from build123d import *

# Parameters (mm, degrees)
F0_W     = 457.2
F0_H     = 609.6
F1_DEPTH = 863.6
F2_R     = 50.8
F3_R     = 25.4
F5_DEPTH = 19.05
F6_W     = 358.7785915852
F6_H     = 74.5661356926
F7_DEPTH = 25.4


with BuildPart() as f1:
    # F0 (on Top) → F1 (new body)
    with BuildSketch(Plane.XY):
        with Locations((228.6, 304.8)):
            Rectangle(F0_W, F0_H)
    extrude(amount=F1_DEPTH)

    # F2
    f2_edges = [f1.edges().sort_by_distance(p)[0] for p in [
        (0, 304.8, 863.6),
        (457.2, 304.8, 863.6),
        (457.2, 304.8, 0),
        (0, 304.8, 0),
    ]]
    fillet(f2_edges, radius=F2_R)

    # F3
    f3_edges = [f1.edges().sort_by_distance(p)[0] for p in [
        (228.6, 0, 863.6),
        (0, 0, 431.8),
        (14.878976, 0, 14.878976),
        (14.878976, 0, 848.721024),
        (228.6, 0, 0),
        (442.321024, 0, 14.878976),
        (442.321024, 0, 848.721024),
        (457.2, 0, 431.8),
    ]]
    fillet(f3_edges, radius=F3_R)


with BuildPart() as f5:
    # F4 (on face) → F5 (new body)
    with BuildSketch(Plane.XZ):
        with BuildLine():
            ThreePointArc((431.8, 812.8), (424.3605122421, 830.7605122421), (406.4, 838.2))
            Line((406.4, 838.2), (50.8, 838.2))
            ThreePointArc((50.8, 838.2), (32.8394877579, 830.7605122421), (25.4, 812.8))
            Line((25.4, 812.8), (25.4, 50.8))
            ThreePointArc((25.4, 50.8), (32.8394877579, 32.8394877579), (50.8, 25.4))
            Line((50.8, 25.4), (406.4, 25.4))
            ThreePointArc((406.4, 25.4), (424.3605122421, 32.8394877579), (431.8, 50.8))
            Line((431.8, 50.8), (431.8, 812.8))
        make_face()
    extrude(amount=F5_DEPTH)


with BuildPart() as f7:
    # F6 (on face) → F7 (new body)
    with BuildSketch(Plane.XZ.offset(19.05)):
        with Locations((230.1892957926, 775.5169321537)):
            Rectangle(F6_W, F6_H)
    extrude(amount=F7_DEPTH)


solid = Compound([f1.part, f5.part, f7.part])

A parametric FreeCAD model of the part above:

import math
import FreeCAD as App
import Part
import Sketcher

V = App.Vector
Q = App.Units.Quantity


def edges_at(feature, points):
    """Names of the edges that pass closest to the given points."""
    edges = feature.Shape.Edges
    near = lambda p: min(range(len(edges)), key=lambda i: edges[i].distToShape(Part.Vertex(*p))[0])
    return sorted({f"Edge{near(p) + 1}" for p in points})


def add_polygon(sketch, points):
    """Adds a closed chain of lines whose ends are joined by coincident constraints."""
    first, n = sketch.GeometryCount, len(points)
    for a, b in zip(points, points[1:] + points[:1]):
        sketch.addGeometry(Part.LineSegment(App.Vector(*a, 0), App.Vector(*b, 0)), False)
    for i in range(n):
        sketch.addConstraint(Sketcher.Constraint("Coincident", first + i, 2, first + (i + 1) % n, 1))

doc = App.newDocument("Part")
params = doc.addObject("Spreadsheet::Sheet", "Params")
for row, (alias, value) in enumerate([
    ("sketch1_width", "18 in"),
    ("sketch1_height", "24 in"),
    ("pad1_length", "34 in"),
    ("fillet_radius", "2 in"),
    ("fillet2_radius", "1 in"),
    ("sketch2_radius", "1 in"),
    ("sketch2_width", "14 in"),
    ("sketch2_height", "30 in"),
    ("pad2_length", "0.75 in"),
    ("pad3_length", "1 in"),
], start=1):
    params.set(f"A{row}", alias)
    params.set(f"B{row}", "=" + value)
    params.setAlias(f"B{row}", alias)

body = doc.addObject("PartDesign::Body", "Body")

# Sketch on XY plane
sketch1 = doc.addObject("Sketcher::SketchObject", "Sketch")
body.addObject(sketch1)
sketch1.AttachmentSupport = (doc.XY_Plane, [""])
sketch1.MapMode = "FlatFace"
add_polygon(sketch1, [(0, 609.6), (0, 0), (457.2, 0), (457.2, 609.6)])  # lines 0-3
sketch1.addConstraint(Sketcher.Constraint("Vertical", 0))
sketch1.addConstraint(Sketcher.Constraint("Horizontal", 1))
sketch1.addConstraint(Sketcher.Constraint("Vertical", 2))
sketch1.addConstraint(Sketcher.Constraint("Horizontal", 3))
sketch1.addConstraint(Sketcher.Constraint("Coincident", 0, 2, -1, 1))
sketch1.addConstraint(Sketcher.Constraint("DistanceX", 1, 1, 1, 2, Q("18 in")))
sketch1.addConstraint(Sketcher.Constraint("DistanceY", 0, 2, 0, 1, Q("24 in")))
sketch1.setExpression("Constraints[9]", "Params.sketch1_width")
sketch1.setExpression("Constraints[10]", "Params.sketch1_height")
pad1 = doc.addObject("PartDesign::Pad", "Pad")
body.addObject(pad1)
pad1.Profile = sketch1
pad1.setExpression("Length", "Params.pad1_length")
doc.recompute()

fillet = doc.addObject("PartDesign::Fillet", "Fillet")
body.addObject(fillet)
fillet.Base = (pad1, edges_at(pad1, [
    (0, 304.8, 863.6),
    (457.2, 304.8, 863.6),
    (457.2, 304.8, 0),
    (0, 304.8, 0),
]))
fillet.setExpression("Radius", "Params.fillet_radius")
doc.recompute()

fillet2 = doc.addObject("PartDesign::Fillet", "Fillet001")
body.addObject(fillet2)
fillet2.Base = (fillet, edges_at(fillet, [
    (228.6, 0, 863.6),
    (0, 0, 431.8),
    (14.879, 0, 14.879),
    (14.879, 0, 848.721),
    (228.6, 0, 0),
    (442.321, 0, 14.879),
    (442.321, 0, 848.721),
    (457.2, 0, 431.8),
]))
fillet2.setExpression("Radius", "Params.fillet2_radius")
body2 = doc.addObject("PartDesign::Body", "Body001")

# Sketch on XZ plane
sketch2 = doc.addObject("Sketcher::SketchObject", "Sketch001")
body2.addObject(sketch2)
sketch2.AttachmentSupport = (doc.getObject("XZ_Plane001"), [""])
sketch2.MapMode = "FlatFace"
sketch2.addGeometry(Part.ArcOfCircle(Part.Circle(V(406.4, 812.8, 0), V(0, 0, 1), 25.4), math.radians(0), math.radians(90)), False)
sketch2.addGeometry(Part.LineSegment(V(406.4, 838.2, 0), V(50.8, 838.2, 0)), False)
sketch2.addGeometry(Part.ArcOfCircle(Part.Circle(V(50.8, 812.8, 0), V(0, 0, 1), 25.4), math.radians(90), math.radians(180)), False)
sketch2.addGeometry(Part.LineSegment(V(25.4, 812.8, 0), V(25.4, 50.8, 0)), False)
sketch2.addGeometry(Part.ArcOfCircle(Part.Circle(V(50.8, 50.8, 0), V(0, 0, 1), 25.4), math.radians(180), math.radians(270)), False)
sketch2.addGeometry(Part.LineSegment(V(50.8, 25.4, 0), V(406.4, 25.4, 0)), False)
sketch2.addGeometry(Part.ArcOfCircle(Part.Circle(V(406.4, 50.8, 0), V(0, 0, 1), 25.4), math.radians(-90), math.radians(0)), False)
sketch2.addGeometry(Part.LineSegment(V(431.8, 50.8, 0), V(431.8, 812.8, 0)), False)
sketch2.addConstraint(Sketcher.Constraint("Tangent", 0, 2, 1, 1))
sketch2.addConstraint(Sketcher.Constraint("Tangent", 1, 2, 2, 1))
sketch2.addConstraint(Sketcher.Constraint("Tangent", 2, 2, 3, 1))
sketch2.addConstraint(Sketcher.Constraint("Tangent", 3, 2, 4, 1))
sketch2.addConstraint(Sketcher.Constraint("Tangent", 4, 2, 5, 1))
sketch2.addConstraint(Sketcher.Constraint("Tangent", 5, 2, 6, 1))
sketch2.addConstraint(Sketcher.Constraint("Tangent", 6, 2, 7, 1))
sketch2.addConstraint(Sketcher.Constraint("Tangent", 7, 2, 0, 1))
sketch2.addConstraint(Sketcher.Constraint("Horizontal", 1))
sketch2.addConstraint(Sketcher.Constraint("Vertical", 3))
sketch2.addConstraint(Sketcher.Constraint("Horizontal", 5))
sketch2.addConstraint(Sketcher.Constraint("Vertical", 7))
sketch2.addConstraint(Sketcher.Constraint("Equal", 0, 2))
sketch2.addConstraint(Sketcher.Constraint("Equal", 2, 4))
sketch2.addConstraint(Sketcher.Constraint("Equal", 4, 6))
sketch2.addConstraint(Sketcher.Constraint("Radius", 0, Q("1 in")))
sketch2.addConstraint(Sketcher.Constraint("DistanceX", 1, 2, 1, 1, Q("14 in")))
sketch2.addConstraint(Sketcher.Constraint("DistanceY", 3, 2, 3, 1, Q("30 in")))
sketch2.addConstraint(Sketcher.Constraint("DistanceX", -1, 1, 0, 3, Q("16 in")))
sketch2.addConstraint(Sketcher.Constraint("DistanceY", -1, 1, 0, 3, Q("32 in")))
sketch2.setExpression("Constraints[15]", "Params.sketch2_radius")
sketch2.setExpression("Constraints[16]", "Params.sketch2_width")
sketch2.setExpression("Constraints[17]", "Params.sketch2_height")
pad2 = doc.addObject("PartDesign::Pad", "Pad001")
body2.addObject(pad2)
pad2.Profile = sketch2
pad2.setExpression("Length", "Params.pad2_length")
body3 = doc.addObject("PartDesign::Body", "Body002")

# Sketch on XZ plane
sketch3 = doc.addObject("Sketcher::SketchObject", "Sketch002")
body3.addObject(sketch3)
sketch3.AttachmentSupport = (doc.getObject("XZ_Plane002"), [""])
sketch3.MapMode = "FlatFace"
sketch3.AttachmentOffset = App.Placement(V(0, 0, 0.75 * 25.4), App.Rotation())
add_polygon(sketch3, [(50.8, 812.8), (50.8, 738.233864), (409.578592, 738.233864), (409.578592, 812.8)])  # lines 0-3
sketch3.addConstraint(Sketcher.Constraint("Vertical", 0))
sketch3.addConstraint(Sketcher.Constraint("Horizontal", 1))
sketch3.addConstraint(Sketcher.Constraint("Vertical", 2))
sketch3.addConstraint(Sketcher.Constraint("Horizontal", 3))
sketch3.addConstraint(Sketcher.Constraint("DistanceX", -1, 1, 0, 2, Q("2 in")))
sketch3.addConstraint(Sketcher.Constraint("DistanceY", -1, 1, 2, 2, Q("32 in")))
sketch3.addConstraint(Sketcher.Constraint("DistanceX", 1, 1, 1, 2, Q("358.778592 mm")))
sketch3.addConstraint(Sketcher.Constraint("DistanceY", 0, 2, 0, 1, Q("74.566136 mm")))
pad3 = doc.addObject("PartDesign::Pad", "Pad002")
body3.addObject(pad3)
pad3.Profile = sketch3
pad3.setExpression("Length", "Params.pad3_length")

doc.recompute()
